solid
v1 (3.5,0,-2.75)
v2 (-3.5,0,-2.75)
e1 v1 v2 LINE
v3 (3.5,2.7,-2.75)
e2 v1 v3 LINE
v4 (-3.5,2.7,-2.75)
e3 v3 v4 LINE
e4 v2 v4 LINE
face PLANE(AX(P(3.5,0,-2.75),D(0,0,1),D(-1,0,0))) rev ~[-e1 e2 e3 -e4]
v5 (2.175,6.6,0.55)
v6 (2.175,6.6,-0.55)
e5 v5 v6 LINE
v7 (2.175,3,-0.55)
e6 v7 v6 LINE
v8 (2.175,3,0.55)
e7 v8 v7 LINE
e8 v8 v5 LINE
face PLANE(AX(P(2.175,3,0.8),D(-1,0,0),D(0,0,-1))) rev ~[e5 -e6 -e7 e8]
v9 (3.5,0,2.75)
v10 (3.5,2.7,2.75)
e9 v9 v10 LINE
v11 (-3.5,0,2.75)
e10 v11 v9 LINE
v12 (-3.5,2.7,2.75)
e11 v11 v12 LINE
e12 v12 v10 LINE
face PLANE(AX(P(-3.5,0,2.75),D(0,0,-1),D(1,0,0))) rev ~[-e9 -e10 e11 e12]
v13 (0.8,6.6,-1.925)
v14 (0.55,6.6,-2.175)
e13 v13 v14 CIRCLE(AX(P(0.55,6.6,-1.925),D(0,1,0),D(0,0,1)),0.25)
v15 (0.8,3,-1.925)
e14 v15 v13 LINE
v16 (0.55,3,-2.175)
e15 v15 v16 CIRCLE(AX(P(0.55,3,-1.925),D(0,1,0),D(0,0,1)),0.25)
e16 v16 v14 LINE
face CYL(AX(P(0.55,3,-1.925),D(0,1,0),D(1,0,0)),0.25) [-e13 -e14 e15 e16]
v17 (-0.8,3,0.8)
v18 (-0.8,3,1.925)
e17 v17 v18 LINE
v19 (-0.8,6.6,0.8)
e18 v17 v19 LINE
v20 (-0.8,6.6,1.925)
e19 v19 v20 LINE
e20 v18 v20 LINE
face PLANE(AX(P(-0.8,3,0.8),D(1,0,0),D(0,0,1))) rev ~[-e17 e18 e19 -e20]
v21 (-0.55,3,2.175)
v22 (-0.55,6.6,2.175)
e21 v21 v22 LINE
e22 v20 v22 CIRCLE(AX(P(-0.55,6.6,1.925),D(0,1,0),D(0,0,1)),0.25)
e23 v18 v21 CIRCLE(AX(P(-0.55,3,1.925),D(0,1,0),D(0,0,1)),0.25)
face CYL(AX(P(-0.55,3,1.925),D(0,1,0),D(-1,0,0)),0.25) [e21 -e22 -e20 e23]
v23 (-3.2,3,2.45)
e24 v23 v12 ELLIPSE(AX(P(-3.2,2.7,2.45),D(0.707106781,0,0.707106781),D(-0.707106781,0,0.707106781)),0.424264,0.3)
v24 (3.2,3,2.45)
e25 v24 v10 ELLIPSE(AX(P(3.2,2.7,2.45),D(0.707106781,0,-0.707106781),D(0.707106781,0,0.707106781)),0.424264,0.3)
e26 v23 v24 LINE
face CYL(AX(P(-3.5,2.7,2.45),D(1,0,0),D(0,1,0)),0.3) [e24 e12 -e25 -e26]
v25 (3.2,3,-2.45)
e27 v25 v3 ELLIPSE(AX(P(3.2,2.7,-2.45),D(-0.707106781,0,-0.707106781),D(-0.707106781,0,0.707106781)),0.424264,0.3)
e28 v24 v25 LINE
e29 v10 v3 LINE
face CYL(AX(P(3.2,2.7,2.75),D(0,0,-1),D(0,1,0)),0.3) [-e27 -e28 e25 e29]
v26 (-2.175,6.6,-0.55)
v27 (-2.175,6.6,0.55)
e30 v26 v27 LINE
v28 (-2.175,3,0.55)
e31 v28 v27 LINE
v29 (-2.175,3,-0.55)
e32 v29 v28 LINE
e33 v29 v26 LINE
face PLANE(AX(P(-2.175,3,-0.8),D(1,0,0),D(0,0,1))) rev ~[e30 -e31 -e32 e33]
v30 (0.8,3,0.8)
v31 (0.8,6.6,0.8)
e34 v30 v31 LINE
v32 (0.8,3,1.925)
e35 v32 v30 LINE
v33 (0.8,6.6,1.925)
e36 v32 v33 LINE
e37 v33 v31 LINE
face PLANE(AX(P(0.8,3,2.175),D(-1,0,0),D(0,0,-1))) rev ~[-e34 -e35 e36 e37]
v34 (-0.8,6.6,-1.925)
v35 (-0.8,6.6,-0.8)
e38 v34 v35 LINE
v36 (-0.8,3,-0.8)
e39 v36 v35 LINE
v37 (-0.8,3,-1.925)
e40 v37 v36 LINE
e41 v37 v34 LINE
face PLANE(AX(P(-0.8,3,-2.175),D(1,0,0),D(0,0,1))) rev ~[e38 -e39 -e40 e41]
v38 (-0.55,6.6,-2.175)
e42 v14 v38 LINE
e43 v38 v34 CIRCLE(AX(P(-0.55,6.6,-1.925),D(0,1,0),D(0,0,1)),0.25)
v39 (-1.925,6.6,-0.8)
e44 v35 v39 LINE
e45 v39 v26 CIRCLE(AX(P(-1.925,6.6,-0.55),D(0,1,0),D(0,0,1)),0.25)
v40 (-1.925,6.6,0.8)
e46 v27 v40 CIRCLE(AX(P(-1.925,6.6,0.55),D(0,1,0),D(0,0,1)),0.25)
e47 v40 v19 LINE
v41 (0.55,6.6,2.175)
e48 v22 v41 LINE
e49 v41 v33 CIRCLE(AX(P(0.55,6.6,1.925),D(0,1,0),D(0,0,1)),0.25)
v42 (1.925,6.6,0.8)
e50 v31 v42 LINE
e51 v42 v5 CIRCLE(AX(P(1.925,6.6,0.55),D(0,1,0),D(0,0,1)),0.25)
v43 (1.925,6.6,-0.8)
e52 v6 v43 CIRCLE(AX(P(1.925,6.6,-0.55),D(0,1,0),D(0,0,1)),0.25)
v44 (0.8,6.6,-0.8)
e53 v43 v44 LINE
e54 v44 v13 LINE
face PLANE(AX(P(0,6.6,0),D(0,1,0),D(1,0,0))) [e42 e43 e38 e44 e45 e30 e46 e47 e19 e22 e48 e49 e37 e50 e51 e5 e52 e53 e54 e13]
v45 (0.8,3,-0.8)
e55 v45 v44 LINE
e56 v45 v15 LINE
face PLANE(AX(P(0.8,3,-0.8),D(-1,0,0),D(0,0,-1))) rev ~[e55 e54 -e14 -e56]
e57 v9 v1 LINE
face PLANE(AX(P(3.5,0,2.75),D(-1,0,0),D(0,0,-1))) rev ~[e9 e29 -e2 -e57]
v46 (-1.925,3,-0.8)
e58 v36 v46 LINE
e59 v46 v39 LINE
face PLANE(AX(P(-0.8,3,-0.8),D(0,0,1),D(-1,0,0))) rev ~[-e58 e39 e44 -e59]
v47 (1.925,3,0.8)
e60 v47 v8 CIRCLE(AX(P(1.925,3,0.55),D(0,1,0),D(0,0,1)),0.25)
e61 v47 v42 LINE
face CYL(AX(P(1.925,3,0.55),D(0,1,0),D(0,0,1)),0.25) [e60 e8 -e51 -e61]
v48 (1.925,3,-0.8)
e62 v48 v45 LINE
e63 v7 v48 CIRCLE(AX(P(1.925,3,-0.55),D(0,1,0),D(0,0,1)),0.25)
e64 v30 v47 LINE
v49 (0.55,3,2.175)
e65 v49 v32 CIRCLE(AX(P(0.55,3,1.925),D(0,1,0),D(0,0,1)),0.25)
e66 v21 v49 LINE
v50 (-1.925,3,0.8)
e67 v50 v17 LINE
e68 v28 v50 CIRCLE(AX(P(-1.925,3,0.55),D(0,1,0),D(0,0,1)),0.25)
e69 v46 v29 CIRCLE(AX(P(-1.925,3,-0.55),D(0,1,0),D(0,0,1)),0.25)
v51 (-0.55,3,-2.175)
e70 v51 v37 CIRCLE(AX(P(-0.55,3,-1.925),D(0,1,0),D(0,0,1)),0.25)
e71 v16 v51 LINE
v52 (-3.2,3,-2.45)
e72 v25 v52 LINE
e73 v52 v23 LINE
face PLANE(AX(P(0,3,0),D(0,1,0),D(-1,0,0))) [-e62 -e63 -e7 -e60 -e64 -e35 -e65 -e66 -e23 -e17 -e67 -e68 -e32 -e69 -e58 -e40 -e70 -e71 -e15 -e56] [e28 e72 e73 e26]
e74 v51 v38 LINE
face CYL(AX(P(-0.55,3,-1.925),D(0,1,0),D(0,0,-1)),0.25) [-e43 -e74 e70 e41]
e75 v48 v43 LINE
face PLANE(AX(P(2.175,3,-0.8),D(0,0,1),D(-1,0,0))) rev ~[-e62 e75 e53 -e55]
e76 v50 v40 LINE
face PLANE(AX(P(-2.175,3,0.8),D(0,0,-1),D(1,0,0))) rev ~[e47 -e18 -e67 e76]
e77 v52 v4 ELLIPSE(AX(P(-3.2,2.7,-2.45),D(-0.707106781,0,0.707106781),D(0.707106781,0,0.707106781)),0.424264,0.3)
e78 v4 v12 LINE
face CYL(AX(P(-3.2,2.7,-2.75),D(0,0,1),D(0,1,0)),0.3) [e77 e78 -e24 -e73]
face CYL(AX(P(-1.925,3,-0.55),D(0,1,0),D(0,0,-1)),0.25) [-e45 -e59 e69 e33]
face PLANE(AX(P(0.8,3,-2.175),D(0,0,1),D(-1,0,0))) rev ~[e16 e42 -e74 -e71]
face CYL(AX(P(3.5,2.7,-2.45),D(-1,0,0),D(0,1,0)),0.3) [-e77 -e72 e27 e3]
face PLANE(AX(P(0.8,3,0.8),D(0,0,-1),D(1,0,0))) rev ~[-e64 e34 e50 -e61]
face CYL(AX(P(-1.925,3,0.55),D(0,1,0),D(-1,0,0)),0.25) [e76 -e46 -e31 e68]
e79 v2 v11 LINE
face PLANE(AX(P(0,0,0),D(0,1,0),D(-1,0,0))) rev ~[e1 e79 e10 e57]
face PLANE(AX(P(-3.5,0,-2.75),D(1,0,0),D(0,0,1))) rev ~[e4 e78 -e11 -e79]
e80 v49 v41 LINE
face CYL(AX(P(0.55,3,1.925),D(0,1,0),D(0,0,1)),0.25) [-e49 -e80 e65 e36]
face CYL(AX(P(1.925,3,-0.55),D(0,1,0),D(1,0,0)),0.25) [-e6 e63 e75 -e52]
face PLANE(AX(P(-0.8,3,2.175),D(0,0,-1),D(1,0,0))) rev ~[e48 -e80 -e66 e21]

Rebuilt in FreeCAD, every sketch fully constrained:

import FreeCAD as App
import Part
import Sketcher
from FreeCAD import Vector


def edges_at(feature, points):
    """Names of the edges that pass closest to the given points."""
    edges = feature.Shape.Edges
    near = lambda p: min(range(len(edges)), key=lambda i: edges[i].distToShape(Part.Vertex(*p))[0])
    return sorted({f"Edge{near(p) + 1}" for p in points})


def add_polygon(sketch, points):
    """Adds a closed chain of lines whose ends are joined by coincident constraints."""
    first, n = sketch.GeometryCount, len(points)
    for a, b in zip(points, points[1:] + points[:1]):
        sketch.addGeometry(Part.LineSegment(App.Vector(*a, 0), App.Vector(*b, 0)), False)
    for i in range(n):
        sketch.addConstraint(Sketcher.Constraint("Coincident", first + i, 2, first + (i + 1) % n, 1))

doc = App.newDocument("Part")
body = doc.addObject("PartDesign::Body", "Body")

# Sketch on XZ plane
sketch1 = body.newObject("Sketcher::SketchObject", "Sketch")
sketch1.AttachmentSupport = (doc.getObject("XZ_Plane"), [""])
sketch1.MapMode = "FlatFace"
add_polygon(sketch1, [(-4, -3), (-4, 3), (4, 3), (4, -3)])  # lines 0-3
sketch1.addConstraint(Sketcher.Constraint("Vertical", 0))
sketch1.addConstraint(Sketcher.Constraint("Horizontal", 1))
sketch1.addConstraint(Sketcher.Constraint("Vertical", 2))
sketch1.addConstraint(Sketcher.Constraint("Horizontal", 3))
sketch1.addConstraint(Sketcher.Constraint("Symmetric", 0, 2, 2, 2, -1, 1))
sketch1.addConstraint(Sketcher.Constraint("DistanceX", 1, 1, 1, 2, 7.0))
sketch1.addConstraint(Sketcher.Constraint("DistanceY", 0, 1, 0, 2, 5.5))
pad1 = body.newObject("PartDesign::Pad", "Pad")
pad1.Profile = sketch1
pad1.Length = 3
pad1.Reversed = True

# Sketch on XZ plane
sketch2 = body.newObject("Sketcher::SketchObject", "Sketch001")
sketch2.AttachmentSupport = (doc.getObject("XZ_Plane"), [""])
sketch2.MapMode = "FlatFace"
sketch2.AttachmentOffset = App.Placement(Vector(0, 0, -3), App.Rotation())
add_polygon(sketch2, [(-0.8, 0.8), (-0.8, 2.2), (0.8, 2.2), (0.8, 0.8), (2.2, 0.8), (2.2, -0.8), (0.8, -0.8), (0.8, -2.2), (-0.8, -2.2), (-0.8, -0.8), (-2.2, -0.8), (-2.2, 0.8)])  # lines 0-11
sketch2.addConstraint(Sketcher.Constraint("Vertical", 0))
sketch2.addConstraint(Sketcher.Constraint("Horizontal", 1))
sketch2.addConstraint(Sketcher.Constraint("Vertical", 2))
sketch2.addConstraint(Sketcher.Constraint("Horizontal", 3))
sketch2.addConstraint(Sketcher.Constraint("Vertical", 4))
sketch2.addConstraint(Sketcher.Constraint("Horizontal", 5))
sketch2.addConstraint(Sketcher.Constraint("Vertical", 6))
sketch2.addConstraint(Sketcher.Constraint("Horizontal", 7))
sketch2.addConstraint(Sketcher.Constraint("Vertical", 8))
sketch2.addConstraint(Sketcher.Constraint("Horizontal", 9))
sketch2.addConstraint(Sketcher.Constraint("Vertical", 10))
sketch2.addConstraint(Sketcher.Constraint("Horizontal", 11))
sketch2.addConstraint(Sketcher.Constraint("Symmetric", 0, 2, 6, 2, -1, 1))
sketch2.addConstraint(Sketcher.Constraint("Symmetric", 2, 2, 8, 2, -1, 1))
sketch2.addConstraint(Sketcher.Constraint("Symmetric", 4, 2, 10, 2, -1, 1))
sketch2.addConstraint(Sketcher.Constraint("Symmetric", 5, 2, 8, 2, -2))
sketch2.addConstraint(Sketcher.Constraint("Equal", 11, 0))
sketch2.addConstraint(Sketcher.Constraint("Equal", 7, 4))
sketch2.addConstraint(Sketcher.Constraint("DistanceX", 1, 1, 1, 2, 1.6))
sketch2.addConstraint(Sketcher.Constraint("DistanceY", 6, 2, 1, 2, 4.35))
pad2 = body.newObject("PartDesign::Pad", "Pad001")
pad2.Profile = sketch2
pad2.Length = 3.6
pad2.Reversed = True
doc.recompute()

fillet = body.newObject("PartDesign::Fillet", "Fillet")
fillet.Base = (pad2, edges_at(pad2, [
    (2.175, 4.8, 0.8),
    (0.8, 4.8, 2.175),
    (-0.8, 4.8, 2.175),
    (-2.175, 4.8, 0.8),
    (-2.175, 4.8, -0.8),
    (-0.8, 4.8, -2.175),
    (0.8, 4.8, -2.175),
    (2.175, 4.8, -0.8),
]))
fillet.Radius = 0.25
doc.recompute()

fillet2 = body.newObject("PartDesign::Fillet", "Fillet001")
fillet2.Base = (fillet, edges_at(fillet, [
    (-3.5, 3, 0),
    (0, 3, -2.75),
    (0, 3, 2.75),
    (3.5, 3, 0),
]))
fillet2.Radius = 0.3

doc.recompute()
